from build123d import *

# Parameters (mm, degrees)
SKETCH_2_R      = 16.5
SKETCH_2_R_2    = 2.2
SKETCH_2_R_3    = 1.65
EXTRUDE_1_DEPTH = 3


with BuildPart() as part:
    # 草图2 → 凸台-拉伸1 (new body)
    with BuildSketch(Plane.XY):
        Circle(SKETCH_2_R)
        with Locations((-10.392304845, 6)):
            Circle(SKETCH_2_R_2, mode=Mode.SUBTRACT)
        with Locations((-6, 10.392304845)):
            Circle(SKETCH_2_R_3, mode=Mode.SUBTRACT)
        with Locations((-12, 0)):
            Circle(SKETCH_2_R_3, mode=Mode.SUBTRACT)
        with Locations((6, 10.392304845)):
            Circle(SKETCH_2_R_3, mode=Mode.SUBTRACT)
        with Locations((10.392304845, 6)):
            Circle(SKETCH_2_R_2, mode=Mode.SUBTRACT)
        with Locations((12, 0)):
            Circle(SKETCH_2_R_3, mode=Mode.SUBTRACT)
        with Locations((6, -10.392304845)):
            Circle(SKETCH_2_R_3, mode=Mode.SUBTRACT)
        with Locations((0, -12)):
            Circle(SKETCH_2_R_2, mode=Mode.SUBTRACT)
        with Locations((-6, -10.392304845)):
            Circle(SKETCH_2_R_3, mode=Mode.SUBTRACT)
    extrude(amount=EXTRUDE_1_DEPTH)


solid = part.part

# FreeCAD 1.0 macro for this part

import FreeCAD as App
import Part
import Sketcher

V = App.Vector

doc = App.newDocument("Part")
params = doc.addObject("Spreadsheet::Sheet", "Params")
for row, (alias, value) in enumerate([
    ("sketch1_diameter", "33 mm"),
    ("sketch1_diameter2", "4.4 mm"),
    ("sketch1_diameter3", "3.3 mm"),
    ("pad1_length", "3 mm"),
], start=1):
    params.set(f"A{row}", alias)
    params.set(f"B{row}", "=" + value)
    params.setAlias(f"B{row}", alias)

body = doc.addObject("PartDesign::Body", "Body")

sketch1 = doc.addObject("Sketcher::SketchObject", "Sketch")
body.addObject(sketch1)
sketch1.AttachmentSupport = (doc.XY_Plane, [""])
sketch1.MapMode = "FlatFace"
sketch1.addGeometry([
    Part.Circle(V(0, 0, 0), V(0, 0, 1), 16.5),
    Part.Circle(V(0, -12, 0), V(0, 0, 1), 2.2),
    Part.Circle(V(-6, -10.4, 0), V(0, 0, 1), 1.6),
    Part.Circle(V(6, -10.4, 0), V(0, 0, 1), 1.6),
    Part.Circle(V(-12, 0, 0), V(0, 0, 1), 1.6),
    Part.Circle(V(-10.4, 6, 0), V(0, 0, 1), 2.2),
    Part.Circle(V(-6, 10.4, 0), V(0, 0, 1), 1.6),
    Part.Circle(V(12, 0, 0), V(0, 0, 1), 1.6),
    Part.Circle(V(6, 10.4, 0), V(0, 0, 1), 1.6),
    Part.Circle(V(10.4, 6, 0), V(0, 0, 1), 2.2),
], False)
sketch1.addConstraint([
    Sketcher.Constraint("Coincident", 0, 3, -1, 1),
    Sketcher.Constraint("Equal", 2, 3),
    Sketcher.Constraint("Equal", 3, 4),
    Sketcher.Constraint("Equal", 1, 5),
    Sketcher.Constraint("Equal", 4, 6),
    Sketcher.Constraint("Equal", 6, 7),
    Sketcher.Constraint("Equal", 7, 8),
    Sketcher.Constraint("Equal", 5, 9),
    Sketcher.Constraint("Symmetric", 3, 3, 6, 3, -1, 1),
    Sketcher.Constraint("Symmetric", 4, 3, 7, 3, -1, 1),
    Sketcher.Constraint("Symmetric", 2, 3, 8, 3, -1, 1),
    Sketcher.Constraint("Symmetric", 2, 3, 3, 3, -2),
    Sketcher.Constraint("Symmetric", 5, 3, 9, 3, -2),
    Sketcher.Constraint("PointOnObject", 1, 3, -2),
    Sketcher.Constraint("PointOnObject", 4, 3, -1),
    Sketcher.Constraint("Diameter", 0, 33.0),
    Sketcher.Constraint("Diameter", 1, 4.4),
    Sketcher.Constraint("Diameter", 2, 3.3),
    Sketcher.Constraint("DistanceY", 1, 3, -1, 1, 12.0),
    Sketcher.Constraint("DistanceX", 2, 3, -1, 1, 6.0),
    Sketcher.Constraint("DistanceX", 4, 3, -1, 1, 12.0),
    Sketcher.Constraint("DistanceY", -1, 1, 5, 3, 6.0),
    Sketcher.Constraint("DistanceY", 2, 3, 6, 3, 20.78461),
    Sketcher.Constraint("DistanceX", 5, 3, -1, 1, 10.392305),
])
sketch1.setExpression("Constraints[15]", "Params.sketch1_diameter")
sketch1.setExpression("Constraints[16]", "Params.sketch1_diameter2")
sketch1.setExpression("Constraints[17]", "Params.sketch1_diameter3")
pad1 = doc.addObject("PartDesign::Pad", "Pad")
body.addObject(pad1)
pad1.Profile = sketch1
pad1.setExpression("Length", "Params.pad1_length")

doc.recompute()
